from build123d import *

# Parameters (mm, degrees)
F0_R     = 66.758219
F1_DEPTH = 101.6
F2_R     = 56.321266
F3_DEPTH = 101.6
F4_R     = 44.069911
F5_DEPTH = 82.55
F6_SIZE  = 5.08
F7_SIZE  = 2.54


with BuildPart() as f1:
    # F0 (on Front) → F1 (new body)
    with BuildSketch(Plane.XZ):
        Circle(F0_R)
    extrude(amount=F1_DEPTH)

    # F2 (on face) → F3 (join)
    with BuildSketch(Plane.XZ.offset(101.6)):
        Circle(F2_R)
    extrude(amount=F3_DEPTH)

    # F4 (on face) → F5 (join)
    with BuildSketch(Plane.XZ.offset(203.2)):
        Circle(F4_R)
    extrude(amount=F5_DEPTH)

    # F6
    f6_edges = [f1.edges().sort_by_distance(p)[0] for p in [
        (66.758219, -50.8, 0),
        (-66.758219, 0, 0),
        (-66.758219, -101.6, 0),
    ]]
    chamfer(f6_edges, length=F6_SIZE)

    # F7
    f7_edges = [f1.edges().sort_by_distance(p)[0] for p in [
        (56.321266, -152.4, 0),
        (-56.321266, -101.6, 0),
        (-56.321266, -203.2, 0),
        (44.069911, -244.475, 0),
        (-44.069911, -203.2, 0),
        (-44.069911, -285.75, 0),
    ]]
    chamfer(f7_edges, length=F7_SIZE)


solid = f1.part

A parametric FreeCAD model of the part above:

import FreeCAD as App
import Part
import Sketcher
Q = App.Units.Quantity


def edges_at(feature, points):
    """Names of the edges that pass closest to the given points."""
    edges = feature.Shape.Edges
    near = lambda p: min(range(len(edges)), key=lambda i: edges[i].distToShape(Part.Vertex(*p))[0])
    return sorted({f"Edge{near(p) + 1}" for p in points})

doc = App.newDocument("Part")
body = doc.addObject("PartDesign::Body", "Body")

sketch1 = body.newObject("Sketcher::SketchObject", "Sketch")
sketch1.AttachmentSupport = (doc.getObject("XZ_Plane"), [""])
sketch1.MapMode = "FlatFace"
sketch1.addGeometry(Part.Circle(App.Vector(0, 0, 0), App.Vector(0, 0, 1), 67), False)
sketch1.addConstraint([
    Sketcher.Constraint("Coincident", 0, 3, -1, 1),
    Sketcher.Constraint("Diameter", 0, Q("133.516438 mm")),
])
pad1 = body.newObject("PartDesign::Pad", "Pad")
pad1.Profile = sketch1
pad1.Length = Q("4 in")

sketch2 = body.newObject("Sketcher::SketchObject", "Sketch001")
sketch2.AttachmentSupport = (doc.getObject("XZ_Plane"), [""])
sketch2.MapMode = "FlatFace"
sketch2.AttachmentOffset = App.Placement(App.Vector(0, 0, 4 * 25.4), App.Rotation())
sketch2.addGeometry(Part.Circle(App.Vector(0, 0, 0), App.Vector(0, 0, 1), 56), False)
sketch2.addConstraint([
    Sketcher.Constraint("Coincident", 0, 3, -1, 1),
    Sketcher.Constraint("Diameter", 0, Q("112.642532 mm")),
])
pad2 = body.newObject("PartDesign::Pad", "Pad001")
pad2.Profile = sketch2
pad2.Length = Q("4 in")

sketch3 = body.newObject("Sketcher::SketchObject", "Sketch002")
sketch3.AttachmentSupport = (doc.getObject("XZ_Plane"), [""])
sketch3.MapMode = "FlatFace"
sketch3.AttachmentOffset = App.Placement(App.Vector(0, 0, 8 * 25.4), App.Rotation())
sketch3.addGeometry(Part.Circle(App.Vector(0, 0, 0), App.Vector(0, 0, 1), 44), False)
sketch3.addConstraint([
    Sketcher.Constraint("Coincident", 0, 3, -1, 1),
    Sketcher.Constraint("Diameter", 0, Q("88.139822 mm")),
])
pad3 = body.newObject("PartDesign::Pad", "Pad002")
pad3.Profile = sketch3
pad3.Length = Q("3.25 in")
doc.recompute()

chamfer = body.newObject("PartDesign::Chamfer", "Chamfer")
chamfer.Base = (pad3, edges_at(pad3, [(66.758, -50.8, 0), (-66.758, 0, 0), (-66.758, -101.6, 0)]))
chamfer.Size = Q("0.2 in")
doc.recompute()

chamfer2 = body.newObject("PartDesign::Chamfer", "Chamfer001")
chamfer2.Base = (chamfer, edges_at(chamfer, [
    (56.321, -152.4, 0),
    (-56.321, -101.6, 0),
    (-56.321, -203.2, 0),
    (44.07, -244.475, 0),
    (-44.07, -203.2, 0),
    (-44.07, -285.75, 0),
]))
chamfer2.Size = Q("0.1 in")

doc.recompute()
